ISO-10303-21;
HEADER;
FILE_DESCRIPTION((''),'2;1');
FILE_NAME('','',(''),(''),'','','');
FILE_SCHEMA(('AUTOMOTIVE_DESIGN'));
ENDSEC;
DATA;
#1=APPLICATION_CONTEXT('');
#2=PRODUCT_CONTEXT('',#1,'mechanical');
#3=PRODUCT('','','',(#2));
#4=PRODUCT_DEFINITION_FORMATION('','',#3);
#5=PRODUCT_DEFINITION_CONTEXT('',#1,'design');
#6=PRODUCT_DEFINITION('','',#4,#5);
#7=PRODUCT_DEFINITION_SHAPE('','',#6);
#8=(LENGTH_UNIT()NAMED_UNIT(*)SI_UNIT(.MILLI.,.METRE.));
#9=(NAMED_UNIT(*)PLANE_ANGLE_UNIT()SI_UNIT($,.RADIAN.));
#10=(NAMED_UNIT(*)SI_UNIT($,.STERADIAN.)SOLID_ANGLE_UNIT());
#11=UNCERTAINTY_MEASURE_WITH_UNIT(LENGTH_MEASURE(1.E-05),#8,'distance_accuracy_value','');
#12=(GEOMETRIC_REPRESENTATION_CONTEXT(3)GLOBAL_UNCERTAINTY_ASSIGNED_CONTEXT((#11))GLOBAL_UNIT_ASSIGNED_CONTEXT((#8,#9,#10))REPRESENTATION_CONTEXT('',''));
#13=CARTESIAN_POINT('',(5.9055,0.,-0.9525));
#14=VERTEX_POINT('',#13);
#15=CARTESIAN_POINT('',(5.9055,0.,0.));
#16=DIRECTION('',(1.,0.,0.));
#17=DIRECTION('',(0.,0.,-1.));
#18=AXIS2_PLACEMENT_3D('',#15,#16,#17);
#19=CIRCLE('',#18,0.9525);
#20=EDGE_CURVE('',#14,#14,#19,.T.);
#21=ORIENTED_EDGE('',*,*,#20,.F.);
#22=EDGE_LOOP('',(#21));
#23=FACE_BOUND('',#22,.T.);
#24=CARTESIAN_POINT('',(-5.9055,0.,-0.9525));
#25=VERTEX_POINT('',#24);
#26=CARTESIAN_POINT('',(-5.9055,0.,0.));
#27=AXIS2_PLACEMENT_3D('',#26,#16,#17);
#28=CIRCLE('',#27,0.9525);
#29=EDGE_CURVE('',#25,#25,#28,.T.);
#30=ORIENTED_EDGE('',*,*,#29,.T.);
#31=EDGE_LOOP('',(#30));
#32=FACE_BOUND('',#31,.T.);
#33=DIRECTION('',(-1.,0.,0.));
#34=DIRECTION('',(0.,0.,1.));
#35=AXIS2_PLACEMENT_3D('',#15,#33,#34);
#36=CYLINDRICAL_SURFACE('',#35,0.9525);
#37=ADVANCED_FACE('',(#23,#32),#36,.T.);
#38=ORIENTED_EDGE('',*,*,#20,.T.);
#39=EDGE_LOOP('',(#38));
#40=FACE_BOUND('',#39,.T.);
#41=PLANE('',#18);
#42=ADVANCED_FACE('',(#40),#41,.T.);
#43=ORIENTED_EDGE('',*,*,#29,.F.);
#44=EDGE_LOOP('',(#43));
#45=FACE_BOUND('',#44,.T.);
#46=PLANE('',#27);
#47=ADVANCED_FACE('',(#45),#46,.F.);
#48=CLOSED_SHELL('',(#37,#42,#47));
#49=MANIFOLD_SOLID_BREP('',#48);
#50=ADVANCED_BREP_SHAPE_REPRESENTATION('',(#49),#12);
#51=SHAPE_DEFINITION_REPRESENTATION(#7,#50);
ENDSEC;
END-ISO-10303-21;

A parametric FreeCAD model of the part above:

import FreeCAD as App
import Part
import Sketcher
from FreeCAD import Vector
Q = App.Units.Quantity

doc = App.newDocument("Part")
body = doc.addObject("PartDesign::Body", "Body")

# Sketch on YZ plane
sketch1 = body.newObject("Sketcher::SketchObject", "Sketch")
sketch1.AttachmentSupport = (doc.getObject("YZ_Plane"), [""])
sketch1.MapMode = "FlatFace"
sketch1.addGeometry(Part.Circle(Vector(0, 0, 0), Vector(0, 0, 1), 0.9525), False)
sketch1.addConstraint([
    Sketcher.Constraint("Coincident", 0, 3, -1, 1),
    Sketcher.Constraint("Diameter", 0, Q("0.075 in")),
])
pad1 = body.newObject("PartDesign::Pad", "Pad")
pad1.Profile = sketch1
pad1.Length = Q("0.465 in")
pad1.Midplane = True

doc.recompute()
